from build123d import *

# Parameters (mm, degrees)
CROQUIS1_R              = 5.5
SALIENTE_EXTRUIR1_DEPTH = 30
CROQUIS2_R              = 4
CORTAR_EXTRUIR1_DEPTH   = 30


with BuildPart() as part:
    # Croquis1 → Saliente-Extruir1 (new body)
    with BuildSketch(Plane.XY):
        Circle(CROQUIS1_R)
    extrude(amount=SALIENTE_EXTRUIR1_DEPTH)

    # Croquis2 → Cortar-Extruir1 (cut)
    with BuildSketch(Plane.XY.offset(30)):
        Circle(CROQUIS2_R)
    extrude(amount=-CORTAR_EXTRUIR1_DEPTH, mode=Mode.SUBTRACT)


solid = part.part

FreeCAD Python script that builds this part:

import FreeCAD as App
import Part
import Sketcher
Q = App.Units.Quantity

doc = App.newDocument("Part")
params = doc.addObject("Spreadsheet::Sheet", "Params")
for row, (alias, value) in enumerate([
    ("sketch1_diameter", "11 mm"),
    ("pad1_length", "30 mm"),
    ("sketch2_diameter", "8 mm"),
    ("pocket1_length", "30 mm"),
], start=1):
    params.set(f"A{row}", alias)
    params.set(f"B{row}", "=" + value)
    params.setAlias(f"B{row}", alias)

body = doc.addObject("PartDesign::Body", "Body")

# Sketch on XY plane
sketch1 = body.newObject("Sketcher::SketchObject", "Sketch")
sketch1.AttachmentSupport = (doc.getObject("XY_Plane"), [""])
sketch1.MapMode = "FlatFace"
sketch1.addGeometry(Part.Circle(App.Vector(0, 0, 0), App.Vector(0, 0, 1), 5.5), False)
sketch1.addConstraint(Sketcher.Constraint("Coincident", 0, 3, -1, 1))
sketch1.addConstraint(Sketcher.Constraint("Diameter", 0, Q("11 mm")))
sketch1.setExpression("Constraints[1]", "Params.sketch1_diameter")
pad1 = body.newObject("PartDesign::Pad", "Pad")
pad1.Profile = sketch1
pad1.setExpression("Length", "Params.pad1_length")

# Sketch on XY plane
sketch2 = body.newObject("Sketcher::SketchObject", "Sketch001")
sketch2.AttachmentSupport = (doc.getObject("XY_Plane"), [""])
sketch2.MapMode = "FlatFace"
sketch2.AttachmentOffset = App.Placement(App.Vector(0, 0, 30), App.Rotation())
sketch2.addGeometry(Part.Circle(App.Vector(0, 0, 0), App.Vector(0, 0, 1), 4), False)
sketch2.addConstraint(Sketcher.Constraint("Coincident", 0, 3, -1, 1))
sketch2.addConstraint(Sketcher.Constraint("Diameter", 0, Q("8 mm")))
sketch2.setExpression("Constraints[1]", "Params.sketch2_diameter")
pocket1 = body.newObject("PartDesign::Pocket", "Pocket")
pocket1.Profile = sketch2
pocket1.setExpression("Length", "Params.pocket1_length")

doc.recompute()
